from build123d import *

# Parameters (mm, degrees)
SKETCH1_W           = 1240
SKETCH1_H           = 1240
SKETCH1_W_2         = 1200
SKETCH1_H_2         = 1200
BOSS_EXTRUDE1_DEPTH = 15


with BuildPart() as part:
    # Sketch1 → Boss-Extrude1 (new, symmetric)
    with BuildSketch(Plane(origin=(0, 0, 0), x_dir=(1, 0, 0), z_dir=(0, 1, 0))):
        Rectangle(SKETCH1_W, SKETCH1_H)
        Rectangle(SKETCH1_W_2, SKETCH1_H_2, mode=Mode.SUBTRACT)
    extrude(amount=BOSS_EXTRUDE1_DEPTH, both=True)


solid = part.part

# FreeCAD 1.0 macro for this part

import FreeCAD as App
import Part
import Sketcher

V = App.Vector

doc = App.newDocument("Part")
body = doc.addObject("PartDesign::Body", "Body")

# Sketch on XZ plane
sketch1 = body.newObject("Sketcher::SketchObject", "Sketch")
sketch1.AttachmentSupport = (doc.getObject("XZ_Plane"), [""])
sketch1.MapMode = "FlatFace"
sketch1.addGeometry(Part.LineSegment(V(-620, -620, 0), V(-620, 620, 0)), False)
sketch1.addGeometry(Part.LineSegment(V(-620, 620, 0), V(620, 620, 0)), False)
sketch1.addGeometry(Part.LineSegment(V(620, 620, 0), V(620, -620, 0)), False)
sketch1.addGeometry(Part.LineSegment(V(620, -620, 0), V(-620, -620, 0)), False)
sketch1.addGeometry(Part.LineSegment(V(600, 600, 0), V(-600, 600, 0)), False)
sketch1.addGeometry(Part.LineSegment(V(-600, 600, 0), V(-600, -600, 0)), False)
sketch1.addGeometry(Part.LineSegment(V(-600, -600, 0), V(600, -600, 0)), False)
sketch1.addGeometry(Part.LineSegment(V(600, -600, 0), V(600, 600, 0)), False)
sketch1.addConstraint(Sketcher.Constraint("Coincident", 0, 2, 1, 1))
sketch1.addConstraint(Sketcher.Constraint("Coincident", 1, 2, 2, 1))
sketch1.addConstraint(Sketcher.Constraint("Coincident", 2, 2, 3, 1))
sketch1.addConstraint(Sketcher.Constraint("Coincident", 3, 2, 0, 1))
sketch1.addConstraint(Sketcher.Constraint("Coincident", 4, 2, 5, 1))
sketch1.addConstraint(Sketcher.Constraint("Coincident", 5, 2, 6, 1))
sketch1.addConstraint(Sketcher.Constraint("Coincident", 6, 2, 7, 1))
sketch1.addConstraint(Sketcher.Constraint("Coincident", 7, 2, 4, 1))
sketch1.addConstraint(Sketcher.Constraint("Vertical", 0))
sketch1.addConstraint(Sketcher.Constraint("Horizontal", 1))
sketch1.addConstraint(Sketcher.Constraint("Vertical", 2))
sketch1.addConstraint(Sketcher.Constraint("Horizontal", 3))
sketch1.addConstraint(Sketcher.Constraint("Horizontal", 4))
sketch1.addConstraint(Sketcher.Constraint("Vertical", 5))
sketch1.addConstraint(Sketcher.Constraint("Horizontal", 6))
sketch1.addConstraint(Sketcher.Constraint("Vertical", 7))
sketch1.addConstraint(Sketcher.Constraint("Symmetric", 0, 2, 2, 2, -1, 1))
sketch1.addConstraint(Sketcher.Constraint("Symmetric", 4, 2, 6, 2, -1, 1))
sketch1.addConstraint(Sketcher.Constraint("Equal", 3, 0))
sketch1.addConstraint(Sketcher.Constraint("Equal", 6, 5))
sketch1.addConstraint(Sketcher.Constraint("DistanceX", 1, 1, 1, 2, 1240.0))
sketch1.addConstraint(Sketcher.Constraint("DistanceX", 4, 2, 4, 1, 1200.0))
pad1 = body.newObject("PartDesign::Pad", "Pad")
pad1.Profile = sketch1
pad1.Length = 30
pad1.Midplane = True

doc.recompute()
